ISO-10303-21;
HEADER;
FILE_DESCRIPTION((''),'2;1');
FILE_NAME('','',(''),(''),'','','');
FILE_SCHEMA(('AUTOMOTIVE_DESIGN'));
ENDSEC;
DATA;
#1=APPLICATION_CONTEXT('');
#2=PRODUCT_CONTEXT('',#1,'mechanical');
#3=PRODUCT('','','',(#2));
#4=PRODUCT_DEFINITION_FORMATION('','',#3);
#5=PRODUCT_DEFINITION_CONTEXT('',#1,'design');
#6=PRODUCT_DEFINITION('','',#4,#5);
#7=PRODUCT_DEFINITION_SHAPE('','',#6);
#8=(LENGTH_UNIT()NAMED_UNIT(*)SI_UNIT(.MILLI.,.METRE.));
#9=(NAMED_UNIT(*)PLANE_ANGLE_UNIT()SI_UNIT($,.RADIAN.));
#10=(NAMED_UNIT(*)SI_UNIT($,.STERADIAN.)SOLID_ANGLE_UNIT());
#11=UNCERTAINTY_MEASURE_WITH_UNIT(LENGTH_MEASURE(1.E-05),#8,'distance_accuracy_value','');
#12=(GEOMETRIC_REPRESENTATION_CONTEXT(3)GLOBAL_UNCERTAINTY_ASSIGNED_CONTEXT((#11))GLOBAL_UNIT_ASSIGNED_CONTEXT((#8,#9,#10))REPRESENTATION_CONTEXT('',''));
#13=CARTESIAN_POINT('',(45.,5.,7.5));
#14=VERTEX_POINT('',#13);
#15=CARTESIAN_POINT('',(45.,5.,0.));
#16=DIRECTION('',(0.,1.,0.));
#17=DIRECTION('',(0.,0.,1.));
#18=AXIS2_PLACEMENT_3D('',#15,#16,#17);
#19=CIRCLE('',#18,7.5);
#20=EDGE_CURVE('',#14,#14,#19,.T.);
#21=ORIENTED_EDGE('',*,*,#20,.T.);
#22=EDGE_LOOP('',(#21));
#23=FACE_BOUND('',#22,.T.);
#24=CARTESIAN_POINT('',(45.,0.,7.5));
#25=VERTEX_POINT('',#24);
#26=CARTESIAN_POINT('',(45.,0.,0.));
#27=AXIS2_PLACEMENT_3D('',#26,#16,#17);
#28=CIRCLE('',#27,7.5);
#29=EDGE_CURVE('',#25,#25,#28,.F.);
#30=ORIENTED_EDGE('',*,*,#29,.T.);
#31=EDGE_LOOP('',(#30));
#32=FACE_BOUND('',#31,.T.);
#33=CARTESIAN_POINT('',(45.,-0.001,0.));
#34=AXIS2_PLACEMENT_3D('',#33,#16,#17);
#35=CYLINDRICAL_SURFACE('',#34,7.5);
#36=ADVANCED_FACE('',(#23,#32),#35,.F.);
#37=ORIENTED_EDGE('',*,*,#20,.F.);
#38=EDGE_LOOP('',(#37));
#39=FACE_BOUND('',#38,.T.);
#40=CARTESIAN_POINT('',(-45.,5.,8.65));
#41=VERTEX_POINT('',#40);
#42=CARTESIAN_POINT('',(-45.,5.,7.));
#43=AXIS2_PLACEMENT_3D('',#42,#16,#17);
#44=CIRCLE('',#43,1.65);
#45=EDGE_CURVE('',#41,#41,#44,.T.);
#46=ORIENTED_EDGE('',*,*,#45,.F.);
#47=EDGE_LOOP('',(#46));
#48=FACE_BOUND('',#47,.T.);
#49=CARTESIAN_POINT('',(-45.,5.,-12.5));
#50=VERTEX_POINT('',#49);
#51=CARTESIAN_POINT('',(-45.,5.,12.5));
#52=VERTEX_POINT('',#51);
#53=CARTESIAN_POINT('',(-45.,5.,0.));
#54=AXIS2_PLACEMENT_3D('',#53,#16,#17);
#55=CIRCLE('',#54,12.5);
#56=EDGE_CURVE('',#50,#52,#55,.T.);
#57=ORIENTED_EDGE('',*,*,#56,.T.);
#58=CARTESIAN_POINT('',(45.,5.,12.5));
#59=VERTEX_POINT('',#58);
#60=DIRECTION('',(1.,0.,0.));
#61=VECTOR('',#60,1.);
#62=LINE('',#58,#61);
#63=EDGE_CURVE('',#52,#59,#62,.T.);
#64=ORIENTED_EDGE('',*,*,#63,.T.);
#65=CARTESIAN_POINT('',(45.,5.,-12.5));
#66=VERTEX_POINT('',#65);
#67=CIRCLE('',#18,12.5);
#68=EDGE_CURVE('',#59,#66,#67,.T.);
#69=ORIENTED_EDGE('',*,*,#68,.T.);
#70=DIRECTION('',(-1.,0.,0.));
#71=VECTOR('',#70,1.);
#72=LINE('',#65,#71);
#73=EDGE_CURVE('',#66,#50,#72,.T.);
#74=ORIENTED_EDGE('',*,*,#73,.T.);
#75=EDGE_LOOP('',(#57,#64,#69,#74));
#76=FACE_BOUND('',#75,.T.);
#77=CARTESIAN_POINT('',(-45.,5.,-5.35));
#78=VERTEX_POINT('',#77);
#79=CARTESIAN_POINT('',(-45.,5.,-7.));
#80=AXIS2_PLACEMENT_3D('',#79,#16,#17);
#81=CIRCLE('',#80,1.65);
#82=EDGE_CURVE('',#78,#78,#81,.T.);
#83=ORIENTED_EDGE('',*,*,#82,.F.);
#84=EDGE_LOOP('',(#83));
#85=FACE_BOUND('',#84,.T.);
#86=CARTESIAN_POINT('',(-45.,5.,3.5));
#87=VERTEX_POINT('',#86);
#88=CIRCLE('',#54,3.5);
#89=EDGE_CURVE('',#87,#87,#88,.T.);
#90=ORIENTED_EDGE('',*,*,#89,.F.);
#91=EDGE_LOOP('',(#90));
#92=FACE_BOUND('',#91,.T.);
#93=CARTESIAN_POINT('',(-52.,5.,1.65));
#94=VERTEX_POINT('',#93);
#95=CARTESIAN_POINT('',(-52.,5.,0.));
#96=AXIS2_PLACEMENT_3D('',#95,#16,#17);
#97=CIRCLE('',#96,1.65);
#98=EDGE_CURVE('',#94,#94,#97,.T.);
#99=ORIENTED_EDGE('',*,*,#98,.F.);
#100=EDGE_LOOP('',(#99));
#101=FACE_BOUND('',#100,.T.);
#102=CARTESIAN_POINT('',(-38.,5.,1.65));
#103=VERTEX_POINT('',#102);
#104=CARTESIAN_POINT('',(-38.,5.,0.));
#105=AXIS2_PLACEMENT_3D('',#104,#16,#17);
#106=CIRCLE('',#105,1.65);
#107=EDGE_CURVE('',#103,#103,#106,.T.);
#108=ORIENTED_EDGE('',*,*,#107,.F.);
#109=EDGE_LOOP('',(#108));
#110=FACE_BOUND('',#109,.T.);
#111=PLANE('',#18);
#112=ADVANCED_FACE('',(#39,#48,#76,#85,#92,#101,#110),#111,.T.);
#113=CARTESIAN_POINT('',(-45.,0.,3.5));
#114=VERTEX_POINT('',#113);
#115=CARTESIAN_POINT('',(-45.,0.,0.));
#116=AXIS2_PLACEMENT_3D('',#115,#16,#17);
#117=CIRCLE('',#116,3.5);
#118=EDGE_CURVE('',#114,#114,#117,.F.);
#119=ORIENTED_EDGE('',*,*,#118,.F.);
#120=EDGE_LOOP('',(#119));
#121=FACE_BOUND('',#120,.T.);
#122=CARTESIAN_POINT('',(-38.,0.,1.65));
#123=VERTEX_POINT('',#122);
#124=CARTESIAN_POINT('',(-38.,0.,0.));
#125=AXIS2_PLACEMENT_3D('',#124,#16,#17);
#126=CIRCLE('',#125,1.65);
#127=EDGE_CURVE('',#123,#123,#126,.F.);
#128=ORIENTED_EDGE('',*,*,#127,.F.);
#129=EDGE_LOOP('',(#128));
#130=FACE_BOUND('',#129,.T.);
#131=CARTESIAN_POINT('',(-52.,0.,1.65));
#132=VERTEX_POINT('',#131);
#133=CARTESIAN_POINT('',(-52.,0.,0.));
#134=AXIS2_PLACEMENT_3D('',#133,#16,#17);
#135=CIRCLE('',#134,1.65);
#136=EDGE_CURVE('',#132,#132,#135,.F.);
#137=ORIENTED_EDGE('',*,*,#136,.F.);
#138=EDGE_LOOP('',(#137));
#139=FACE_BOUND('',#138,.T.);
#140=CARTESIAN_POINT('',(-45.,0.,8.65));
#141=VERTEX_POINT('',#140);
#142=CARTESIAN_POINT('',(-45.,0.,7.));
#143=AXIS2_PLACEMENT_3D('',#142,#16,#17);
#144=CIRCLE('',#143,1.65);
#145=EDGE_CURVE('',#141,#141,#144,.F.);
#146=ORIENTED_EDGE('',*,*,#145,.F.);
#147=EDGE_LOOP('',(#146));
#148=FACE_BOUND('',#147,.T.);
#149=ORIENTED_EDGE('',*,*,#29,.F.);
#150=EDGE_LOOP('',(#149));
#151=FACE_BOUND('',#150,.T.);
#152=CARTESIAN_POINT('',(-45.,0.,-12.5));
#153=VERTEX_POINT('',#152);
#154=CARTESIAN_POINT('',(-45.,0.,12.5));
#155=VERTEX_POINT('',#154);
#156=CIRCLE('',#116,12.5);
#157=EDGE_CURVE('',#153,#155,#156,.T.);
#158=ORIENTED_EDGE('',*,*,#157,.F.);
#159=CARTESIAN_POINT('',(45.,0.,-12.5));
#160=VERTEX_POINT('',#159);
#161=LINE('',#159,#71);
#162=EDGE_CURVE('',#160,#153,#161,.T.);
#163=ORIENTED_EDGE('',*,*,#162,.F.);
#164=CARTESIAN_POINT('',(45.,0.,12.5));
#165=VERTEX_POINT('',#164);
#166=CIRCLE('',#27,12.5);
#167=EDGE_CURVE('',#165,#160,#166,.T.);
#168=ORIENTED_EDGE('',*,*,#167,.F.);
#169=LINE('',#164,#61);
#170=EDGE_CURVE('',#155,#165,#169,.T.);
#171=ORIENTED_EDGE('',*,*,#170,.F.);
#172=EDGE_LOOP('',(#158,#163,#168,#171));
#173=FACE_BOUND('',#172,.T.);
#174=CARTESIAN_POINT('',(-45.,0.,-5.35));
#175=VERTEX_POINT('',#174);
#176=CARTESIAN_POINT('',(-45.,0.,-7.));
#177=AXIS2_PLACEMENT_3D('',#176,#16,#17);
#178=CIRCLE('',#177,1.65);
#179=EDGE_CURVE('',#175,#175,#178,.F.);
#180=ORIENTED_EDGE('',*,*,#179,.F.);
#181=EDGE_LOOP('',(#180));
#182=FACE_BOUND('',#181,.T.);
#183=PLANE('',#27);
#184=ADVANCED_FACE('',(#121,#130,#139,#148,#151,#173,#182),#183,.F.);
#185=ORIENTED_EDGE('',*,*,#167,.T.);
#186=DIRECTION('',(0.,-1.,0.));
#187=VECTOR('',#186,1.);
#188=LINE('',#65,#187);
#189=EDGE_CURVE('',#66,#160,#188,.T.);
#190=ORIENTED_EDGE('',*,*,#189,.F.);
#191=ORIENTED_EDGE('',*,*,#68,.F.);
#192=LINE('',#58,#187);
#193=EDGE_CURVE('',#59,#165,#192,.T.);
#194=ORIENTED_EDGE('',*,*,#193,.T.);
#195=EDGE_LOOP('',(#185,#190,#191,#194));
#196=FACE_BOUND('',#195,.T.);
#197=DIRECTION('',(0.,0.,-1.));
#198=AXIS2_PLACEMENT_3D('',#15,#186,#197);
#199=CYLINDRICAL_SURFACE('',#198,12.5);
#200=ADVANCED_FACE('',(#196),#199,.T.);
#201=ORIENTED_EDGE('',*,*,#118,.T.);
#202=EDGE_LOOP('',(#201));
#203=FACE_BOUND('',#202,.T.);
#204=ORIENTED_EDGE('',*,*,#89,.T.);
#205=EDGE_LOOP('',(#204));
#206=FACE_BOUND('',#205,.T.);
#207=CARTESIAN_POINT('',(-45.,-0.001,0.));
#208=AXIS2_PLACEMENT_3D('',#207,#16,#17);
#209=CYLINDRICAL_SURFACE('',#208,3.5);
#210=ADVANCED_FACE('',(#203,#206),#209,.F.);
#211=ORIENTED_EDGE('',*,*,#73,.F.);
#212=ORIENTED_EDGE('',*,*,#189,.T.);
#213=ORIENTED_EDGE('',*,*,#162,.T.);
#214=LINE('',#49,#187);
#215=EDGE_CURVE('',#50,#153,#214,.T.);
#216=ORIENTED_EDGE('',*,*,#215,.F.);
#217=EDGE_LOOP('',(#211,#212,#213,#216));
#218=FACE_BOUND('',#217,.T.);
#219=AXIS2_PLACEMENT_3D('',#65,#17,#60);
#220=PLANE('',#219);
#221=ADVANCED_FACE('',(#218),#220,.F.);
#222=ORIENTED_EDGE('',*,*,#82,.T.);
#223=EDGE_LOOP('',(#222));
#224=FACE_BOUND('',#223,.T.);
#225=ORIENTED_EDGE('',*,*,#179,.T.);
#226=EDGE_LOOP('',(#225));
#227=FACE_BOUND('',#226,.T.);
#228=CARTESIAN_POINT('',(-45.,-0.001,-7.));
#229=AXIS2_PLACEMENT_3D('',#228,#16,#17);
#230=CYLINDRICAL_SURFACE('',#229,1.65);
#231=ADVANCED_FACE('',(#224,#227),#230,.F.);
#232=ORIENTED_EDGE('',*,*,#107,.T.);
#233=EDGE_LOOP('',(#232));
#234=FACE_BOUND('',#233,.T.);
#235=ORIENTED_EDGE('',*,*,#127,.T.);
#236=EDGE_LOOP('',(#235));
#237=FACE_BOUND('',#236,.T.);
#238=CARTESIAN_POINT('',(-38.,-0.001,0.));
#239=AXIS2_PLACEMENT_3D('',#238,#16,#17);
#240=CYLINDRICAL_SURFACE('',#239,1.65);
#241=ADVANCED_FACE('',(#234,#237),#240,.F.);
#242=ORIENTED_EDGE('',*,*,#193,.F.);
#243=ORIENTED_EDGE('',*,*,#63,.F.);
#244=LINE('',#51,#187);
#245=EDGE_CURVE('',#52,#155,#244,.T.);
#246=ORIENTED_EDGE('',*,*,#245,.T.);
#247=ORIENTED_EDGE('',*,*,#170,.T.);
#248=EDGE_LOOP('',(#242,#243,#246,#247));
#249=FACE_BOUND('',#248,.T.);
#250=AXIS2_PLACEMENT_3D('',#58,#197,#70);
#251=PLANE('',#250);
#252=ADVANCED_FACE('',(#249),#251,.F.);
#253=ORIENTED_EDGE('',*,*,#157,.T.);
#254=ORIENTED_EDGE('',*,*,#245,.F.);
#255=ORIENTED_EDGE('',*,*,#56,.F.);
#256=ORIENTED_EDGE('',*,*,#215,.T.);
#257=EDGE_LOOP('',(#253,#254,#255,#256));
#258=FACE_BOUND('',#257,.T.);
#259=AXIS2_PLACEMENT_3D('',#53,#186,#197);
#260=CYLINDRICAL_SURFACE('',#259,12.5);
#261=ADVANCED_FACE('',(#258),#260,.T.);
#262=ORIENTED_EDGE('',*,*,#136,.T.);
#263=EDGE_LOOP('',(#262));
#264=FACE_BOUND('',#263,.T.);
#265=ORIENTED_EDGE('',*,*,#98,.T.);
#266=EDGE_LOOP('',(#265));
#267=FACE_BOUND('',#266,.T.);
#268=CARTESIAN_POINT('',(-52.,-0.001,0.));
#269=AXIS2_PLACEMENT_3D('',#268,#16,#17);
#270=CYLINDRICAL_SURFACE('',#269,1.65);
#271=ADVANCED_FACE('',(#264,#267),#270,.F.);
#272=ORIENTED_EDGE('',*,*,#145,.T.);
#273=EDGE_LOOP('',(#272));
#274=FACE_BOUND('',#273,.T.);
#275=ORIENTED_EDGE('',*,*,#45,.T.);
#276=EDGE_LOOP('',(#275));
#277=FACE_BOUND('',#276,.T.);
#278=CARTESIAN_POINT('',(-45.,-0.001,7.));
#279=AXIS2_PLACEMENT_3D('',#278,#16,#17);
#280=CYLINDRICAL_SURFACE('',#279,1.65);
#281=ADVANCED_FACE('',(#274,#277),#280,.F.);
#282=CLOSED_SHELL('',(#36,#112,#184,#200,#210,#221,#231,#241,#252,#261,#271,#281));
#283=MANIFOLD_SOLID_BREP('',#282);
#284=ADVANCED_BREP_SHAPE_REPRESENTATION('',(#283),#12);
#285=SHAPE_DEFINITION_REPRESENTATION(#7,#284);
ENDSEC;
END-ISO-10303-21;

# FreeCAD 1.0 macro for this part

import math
import FreeCAD as App
import Part
import Sketcher
from FreeCAD import Vector
Q = App.Units.Quantity

doc = App.newDocument("Part")
body = doc.addObject("PartDesign::Body", "Body")

sketch1 = body.newObject("Sketcher::SketchObject", "Sketch")
sketch1.AttachmentSupport = (doc.getObject("XZ_Plane"), [""])
sketch1.MapMode = "FlatFace"
sketch1.addGeometry(Part.LineSegment(Vector(-45, 12.5, 0), Vector(45, 12.5, 0)), False)
sketch1.addGeometry(Part.ArcOfCircle(Part.Circle(Vector(45, 0, 0), Vector(0, 0, 1), 12.5), math.radians(-90), math.radians(90)), False)
sketch1.addGeometry(Part.LineSegment(Vector(45, -12.5, 0), Vector(-45, -12.5, 0)), False)
sketch1.addGeometry(Part.ArcOfCircle(Part.Circle(Vector(-45, 0, 0), Vector(0, 0, 1), 12.5), math.radians(90), math.radians(270)), False)
sketch1.addConstraint(Sketcher.Constraint("Tangent", 0, 2, 1, 2))
sketch1.addConstraint(Sketcher.Constraint("Tangent", 1, 1, 2, 1))
sketch1.addConstraint(Sketcher.Constraint("Tangent", 2, 2, 3, 2))
sketch1.addConstraint(Sketcher.Constraint("Tangent", 3, 1, 0, 1))
sketch1.addConstraint(Sketcher.Constraint("Horizontal", 0))
sketch1.addConstraint(Sketcher.Constraint("Horizontal", 2))
sketch1.addConstraint(Sketcher.Constraint("Symmetric", 1, 3, 3, 3, -1, 1))
sketch1.addConstraint(Sketcher.Constraint("Radius", 1, Q("12.5 mm")))
sketch1.addConstraint(Sketcher.Constraint("DistanceX", 0, 1, 0, 2, Q("90 mm")))
pad1 = body.newObject("PartDesign::Pad", "Pad")
pad1.Profile = sketch1
pad1.Length = 5
pad1.Reversed = True

sketch2 = body.newObject("Sketcher::SketchObject", "Sketch001")
sketch2.AttachmentSupport = (doc.getObject("XZ_Plane"), [""])
sketch2.MapMode = "FlatFace"
sketch2.AttachmentOffset = App.Placement(Vector(0, 0, -5), App.Rotation())
sketch2.addGeometry(Part.Circle(Vector(-45, 0, 0), Vector(0, 0, 1), 3.5), False)
sketch2.addConstraint(Sketcher.Constraint("PointOnObject", 0, 3, -1))
sketch2.addConstraint(Sketcher.Constraint("Diameter", 0, Q("7 mm")))
sketch2.addConstraint(Sketcher.Constraint("DistanceX", 0, 3, -1, 1, Q("45 mm")))
pocket1 = body.newObject("PartDesign::Pocket", "Pocket")
pocket1.Profile = sketch2
pocket1.Type = "UpToFirst"
pocket1.Reversed = True

sketch3 = body.newObject("Sketcher::SketchObject", "Sketch002")
sketch3.AttachmentSupport = (doc.getObject("XZ_Plane"), [""])
sketch3.MapMode = "FlatFace"
sketch3.AttachmentOffset = App.Placement(Vector(0, 0, -5), App.Rotation())
sketch3.addGeometry(Part.Circle(Vector(45, 0, 0), Vector(0, 0, 1), 7.5), False)
sketch3.addConstraint(Sketcher.Constraint("PointOnObject", 0, 3, -1))
sketch3.addConstraint(Sketcher.Constraint("Diameter", 0, Q("15 mm")))
sketch3.addConstraint(Sketcher.Constraint("DistanceX", -1, 1, 0, 3, Q("45 mm")))
pocket2 = body.newObject("PartDesign::Pocket", "Pocket001")
pocket2.Profile = sketch3
pocket2.Type = "UpToFirst"
pocket2.Reversed = True

sketch4 = body.newObject("Sketcher::SketchObject", "Sketch003")
sketch4.AttachmentSupport = (doc.getObject("XZ_Plane"), [""])
sketch4.MapMode = "FlatFace"
sketch4.AttachmentOffset = App.Placement(Vector(0, 0, -5), App.Rotation())
sketch4.addGeometry(Part.Circle(Vector(-45, -7, 0), Vector(0, 0, 1), 1.65), False)
sketch4.addConstraint(Sketcher.Constraint("Diameter", 0, Q("3.3 mm")))
sketch4.addConstraint(Sketcher.Constraint("DistanceX", 0, 3, -1, 1, Q("45 mm")))
sketch4.addConstraint(Sketcher.Constraint("DistanceY", 0, 3, -1, 1, Q("7 mm")))
pocket3 = body.newObject("PartDesign::Pocket", "Pocket002")
pocket3.Profile = sketch4
pocket3.Type = "UpToFirst"
pocket3.Reversed = True

sketch5 = body.newObject("Sketcher::SketchObject", "Sketch004")
sketch5.AttachmentSupport = (doc.getObject("XZ_Plane"), [""])
sketch5.MapMode = "FlatFace"
sketch5.AttachmentOffset = App.Placement(Vector(0, 0, -5), App.Rotation())
sketch5.addGeometry(Part.Circle(Vector(-38, 0, 0), Vector(0, 0, 1), 1.65), False)
sketch5.addConstraint(Sketcher.Constraint("PointOnObject", 0, 3, -1))
sketch5.addConstraint(Sketcher.Constraint("Diameter", 0, Q("3.3 mm")))
sketch5.addConstraint(Sketcher.Constraint("DistanceX", 0, 3, -1, 1, Q("38 mm")))
pocket4 = body.newObject("PartDesign::Pocket", "Pocket003")
pocket4.Profile = sketch5
pocket4.Type = "UpToFirst"
pocket4.Reversed = True

sketch6 = body.newObject("Sketcher::SketchObject", "Sketch005")
sketch6.AttachmentSupport = (doc.getObject("XZ_Plane"), [""])
sketch6.MapMode = "FlatFace"
sketch6.AttachmentOffset = App.Placement(Vector(0, 0, -5), App.Rotation())
sketch6.addGeometry(Part.Circle(Vector(-45, 7, 0), Vector(0, 0, 1), 1.65), False)
sketch6.addConstraint(Sketcher.Constraint("Diameter", 0, Q("3.3 mm")))
sketch6.addConstraint(Sketcher.Constraint("DistanceX", 0, 3, -1, 1, Q("45 mm")))
sketch6.addConstraint(Sketcher.Constraint("DistanceY", -1, 1, 0, 3, Q("7 mm")))
pocket5 = body.newObject("PartDesign::Pocket", "Pocket004")
pocket5.Profile = sketch6
pocket5.Type = "UpToFirst"
pocket5.Reversed = True

sketch7 = body.newObject("Sketcher::SketchObject", "Sketch006")
sketch7.AttachmentSupport = (doc.getObject("XZ_Plane"), [""])
sketch7.MapMode = "FlatFace"
sketch7.AttachmentOffset = App.Placement(Vector(0, 0, -5), App.Rotation())
sketch7.addGeometry(Part.Circle(Vector(-52, 0, 0), Vector(0, 0, 1), 1.65), False)
sketch7.addConstraint(Sketcher.Constraint("PointOnObject", 0, 3, -1))
sketch7.addConstraint(Sketcher.Constraint("Diameter", 0, Q("3.3 mm")))
sketch7.addConstraint(Sketcher.Constraint("DistanceX", 0, 3, -1, 1, Q("52 mm")))
pocket6 = body.newObject("PartDesign::Pocket", "Pocket005")
pocket6.Profile = sketch7
pocket6.Type = "UpToFirst"
pocket6.Reversed = True

doc.recompute()
